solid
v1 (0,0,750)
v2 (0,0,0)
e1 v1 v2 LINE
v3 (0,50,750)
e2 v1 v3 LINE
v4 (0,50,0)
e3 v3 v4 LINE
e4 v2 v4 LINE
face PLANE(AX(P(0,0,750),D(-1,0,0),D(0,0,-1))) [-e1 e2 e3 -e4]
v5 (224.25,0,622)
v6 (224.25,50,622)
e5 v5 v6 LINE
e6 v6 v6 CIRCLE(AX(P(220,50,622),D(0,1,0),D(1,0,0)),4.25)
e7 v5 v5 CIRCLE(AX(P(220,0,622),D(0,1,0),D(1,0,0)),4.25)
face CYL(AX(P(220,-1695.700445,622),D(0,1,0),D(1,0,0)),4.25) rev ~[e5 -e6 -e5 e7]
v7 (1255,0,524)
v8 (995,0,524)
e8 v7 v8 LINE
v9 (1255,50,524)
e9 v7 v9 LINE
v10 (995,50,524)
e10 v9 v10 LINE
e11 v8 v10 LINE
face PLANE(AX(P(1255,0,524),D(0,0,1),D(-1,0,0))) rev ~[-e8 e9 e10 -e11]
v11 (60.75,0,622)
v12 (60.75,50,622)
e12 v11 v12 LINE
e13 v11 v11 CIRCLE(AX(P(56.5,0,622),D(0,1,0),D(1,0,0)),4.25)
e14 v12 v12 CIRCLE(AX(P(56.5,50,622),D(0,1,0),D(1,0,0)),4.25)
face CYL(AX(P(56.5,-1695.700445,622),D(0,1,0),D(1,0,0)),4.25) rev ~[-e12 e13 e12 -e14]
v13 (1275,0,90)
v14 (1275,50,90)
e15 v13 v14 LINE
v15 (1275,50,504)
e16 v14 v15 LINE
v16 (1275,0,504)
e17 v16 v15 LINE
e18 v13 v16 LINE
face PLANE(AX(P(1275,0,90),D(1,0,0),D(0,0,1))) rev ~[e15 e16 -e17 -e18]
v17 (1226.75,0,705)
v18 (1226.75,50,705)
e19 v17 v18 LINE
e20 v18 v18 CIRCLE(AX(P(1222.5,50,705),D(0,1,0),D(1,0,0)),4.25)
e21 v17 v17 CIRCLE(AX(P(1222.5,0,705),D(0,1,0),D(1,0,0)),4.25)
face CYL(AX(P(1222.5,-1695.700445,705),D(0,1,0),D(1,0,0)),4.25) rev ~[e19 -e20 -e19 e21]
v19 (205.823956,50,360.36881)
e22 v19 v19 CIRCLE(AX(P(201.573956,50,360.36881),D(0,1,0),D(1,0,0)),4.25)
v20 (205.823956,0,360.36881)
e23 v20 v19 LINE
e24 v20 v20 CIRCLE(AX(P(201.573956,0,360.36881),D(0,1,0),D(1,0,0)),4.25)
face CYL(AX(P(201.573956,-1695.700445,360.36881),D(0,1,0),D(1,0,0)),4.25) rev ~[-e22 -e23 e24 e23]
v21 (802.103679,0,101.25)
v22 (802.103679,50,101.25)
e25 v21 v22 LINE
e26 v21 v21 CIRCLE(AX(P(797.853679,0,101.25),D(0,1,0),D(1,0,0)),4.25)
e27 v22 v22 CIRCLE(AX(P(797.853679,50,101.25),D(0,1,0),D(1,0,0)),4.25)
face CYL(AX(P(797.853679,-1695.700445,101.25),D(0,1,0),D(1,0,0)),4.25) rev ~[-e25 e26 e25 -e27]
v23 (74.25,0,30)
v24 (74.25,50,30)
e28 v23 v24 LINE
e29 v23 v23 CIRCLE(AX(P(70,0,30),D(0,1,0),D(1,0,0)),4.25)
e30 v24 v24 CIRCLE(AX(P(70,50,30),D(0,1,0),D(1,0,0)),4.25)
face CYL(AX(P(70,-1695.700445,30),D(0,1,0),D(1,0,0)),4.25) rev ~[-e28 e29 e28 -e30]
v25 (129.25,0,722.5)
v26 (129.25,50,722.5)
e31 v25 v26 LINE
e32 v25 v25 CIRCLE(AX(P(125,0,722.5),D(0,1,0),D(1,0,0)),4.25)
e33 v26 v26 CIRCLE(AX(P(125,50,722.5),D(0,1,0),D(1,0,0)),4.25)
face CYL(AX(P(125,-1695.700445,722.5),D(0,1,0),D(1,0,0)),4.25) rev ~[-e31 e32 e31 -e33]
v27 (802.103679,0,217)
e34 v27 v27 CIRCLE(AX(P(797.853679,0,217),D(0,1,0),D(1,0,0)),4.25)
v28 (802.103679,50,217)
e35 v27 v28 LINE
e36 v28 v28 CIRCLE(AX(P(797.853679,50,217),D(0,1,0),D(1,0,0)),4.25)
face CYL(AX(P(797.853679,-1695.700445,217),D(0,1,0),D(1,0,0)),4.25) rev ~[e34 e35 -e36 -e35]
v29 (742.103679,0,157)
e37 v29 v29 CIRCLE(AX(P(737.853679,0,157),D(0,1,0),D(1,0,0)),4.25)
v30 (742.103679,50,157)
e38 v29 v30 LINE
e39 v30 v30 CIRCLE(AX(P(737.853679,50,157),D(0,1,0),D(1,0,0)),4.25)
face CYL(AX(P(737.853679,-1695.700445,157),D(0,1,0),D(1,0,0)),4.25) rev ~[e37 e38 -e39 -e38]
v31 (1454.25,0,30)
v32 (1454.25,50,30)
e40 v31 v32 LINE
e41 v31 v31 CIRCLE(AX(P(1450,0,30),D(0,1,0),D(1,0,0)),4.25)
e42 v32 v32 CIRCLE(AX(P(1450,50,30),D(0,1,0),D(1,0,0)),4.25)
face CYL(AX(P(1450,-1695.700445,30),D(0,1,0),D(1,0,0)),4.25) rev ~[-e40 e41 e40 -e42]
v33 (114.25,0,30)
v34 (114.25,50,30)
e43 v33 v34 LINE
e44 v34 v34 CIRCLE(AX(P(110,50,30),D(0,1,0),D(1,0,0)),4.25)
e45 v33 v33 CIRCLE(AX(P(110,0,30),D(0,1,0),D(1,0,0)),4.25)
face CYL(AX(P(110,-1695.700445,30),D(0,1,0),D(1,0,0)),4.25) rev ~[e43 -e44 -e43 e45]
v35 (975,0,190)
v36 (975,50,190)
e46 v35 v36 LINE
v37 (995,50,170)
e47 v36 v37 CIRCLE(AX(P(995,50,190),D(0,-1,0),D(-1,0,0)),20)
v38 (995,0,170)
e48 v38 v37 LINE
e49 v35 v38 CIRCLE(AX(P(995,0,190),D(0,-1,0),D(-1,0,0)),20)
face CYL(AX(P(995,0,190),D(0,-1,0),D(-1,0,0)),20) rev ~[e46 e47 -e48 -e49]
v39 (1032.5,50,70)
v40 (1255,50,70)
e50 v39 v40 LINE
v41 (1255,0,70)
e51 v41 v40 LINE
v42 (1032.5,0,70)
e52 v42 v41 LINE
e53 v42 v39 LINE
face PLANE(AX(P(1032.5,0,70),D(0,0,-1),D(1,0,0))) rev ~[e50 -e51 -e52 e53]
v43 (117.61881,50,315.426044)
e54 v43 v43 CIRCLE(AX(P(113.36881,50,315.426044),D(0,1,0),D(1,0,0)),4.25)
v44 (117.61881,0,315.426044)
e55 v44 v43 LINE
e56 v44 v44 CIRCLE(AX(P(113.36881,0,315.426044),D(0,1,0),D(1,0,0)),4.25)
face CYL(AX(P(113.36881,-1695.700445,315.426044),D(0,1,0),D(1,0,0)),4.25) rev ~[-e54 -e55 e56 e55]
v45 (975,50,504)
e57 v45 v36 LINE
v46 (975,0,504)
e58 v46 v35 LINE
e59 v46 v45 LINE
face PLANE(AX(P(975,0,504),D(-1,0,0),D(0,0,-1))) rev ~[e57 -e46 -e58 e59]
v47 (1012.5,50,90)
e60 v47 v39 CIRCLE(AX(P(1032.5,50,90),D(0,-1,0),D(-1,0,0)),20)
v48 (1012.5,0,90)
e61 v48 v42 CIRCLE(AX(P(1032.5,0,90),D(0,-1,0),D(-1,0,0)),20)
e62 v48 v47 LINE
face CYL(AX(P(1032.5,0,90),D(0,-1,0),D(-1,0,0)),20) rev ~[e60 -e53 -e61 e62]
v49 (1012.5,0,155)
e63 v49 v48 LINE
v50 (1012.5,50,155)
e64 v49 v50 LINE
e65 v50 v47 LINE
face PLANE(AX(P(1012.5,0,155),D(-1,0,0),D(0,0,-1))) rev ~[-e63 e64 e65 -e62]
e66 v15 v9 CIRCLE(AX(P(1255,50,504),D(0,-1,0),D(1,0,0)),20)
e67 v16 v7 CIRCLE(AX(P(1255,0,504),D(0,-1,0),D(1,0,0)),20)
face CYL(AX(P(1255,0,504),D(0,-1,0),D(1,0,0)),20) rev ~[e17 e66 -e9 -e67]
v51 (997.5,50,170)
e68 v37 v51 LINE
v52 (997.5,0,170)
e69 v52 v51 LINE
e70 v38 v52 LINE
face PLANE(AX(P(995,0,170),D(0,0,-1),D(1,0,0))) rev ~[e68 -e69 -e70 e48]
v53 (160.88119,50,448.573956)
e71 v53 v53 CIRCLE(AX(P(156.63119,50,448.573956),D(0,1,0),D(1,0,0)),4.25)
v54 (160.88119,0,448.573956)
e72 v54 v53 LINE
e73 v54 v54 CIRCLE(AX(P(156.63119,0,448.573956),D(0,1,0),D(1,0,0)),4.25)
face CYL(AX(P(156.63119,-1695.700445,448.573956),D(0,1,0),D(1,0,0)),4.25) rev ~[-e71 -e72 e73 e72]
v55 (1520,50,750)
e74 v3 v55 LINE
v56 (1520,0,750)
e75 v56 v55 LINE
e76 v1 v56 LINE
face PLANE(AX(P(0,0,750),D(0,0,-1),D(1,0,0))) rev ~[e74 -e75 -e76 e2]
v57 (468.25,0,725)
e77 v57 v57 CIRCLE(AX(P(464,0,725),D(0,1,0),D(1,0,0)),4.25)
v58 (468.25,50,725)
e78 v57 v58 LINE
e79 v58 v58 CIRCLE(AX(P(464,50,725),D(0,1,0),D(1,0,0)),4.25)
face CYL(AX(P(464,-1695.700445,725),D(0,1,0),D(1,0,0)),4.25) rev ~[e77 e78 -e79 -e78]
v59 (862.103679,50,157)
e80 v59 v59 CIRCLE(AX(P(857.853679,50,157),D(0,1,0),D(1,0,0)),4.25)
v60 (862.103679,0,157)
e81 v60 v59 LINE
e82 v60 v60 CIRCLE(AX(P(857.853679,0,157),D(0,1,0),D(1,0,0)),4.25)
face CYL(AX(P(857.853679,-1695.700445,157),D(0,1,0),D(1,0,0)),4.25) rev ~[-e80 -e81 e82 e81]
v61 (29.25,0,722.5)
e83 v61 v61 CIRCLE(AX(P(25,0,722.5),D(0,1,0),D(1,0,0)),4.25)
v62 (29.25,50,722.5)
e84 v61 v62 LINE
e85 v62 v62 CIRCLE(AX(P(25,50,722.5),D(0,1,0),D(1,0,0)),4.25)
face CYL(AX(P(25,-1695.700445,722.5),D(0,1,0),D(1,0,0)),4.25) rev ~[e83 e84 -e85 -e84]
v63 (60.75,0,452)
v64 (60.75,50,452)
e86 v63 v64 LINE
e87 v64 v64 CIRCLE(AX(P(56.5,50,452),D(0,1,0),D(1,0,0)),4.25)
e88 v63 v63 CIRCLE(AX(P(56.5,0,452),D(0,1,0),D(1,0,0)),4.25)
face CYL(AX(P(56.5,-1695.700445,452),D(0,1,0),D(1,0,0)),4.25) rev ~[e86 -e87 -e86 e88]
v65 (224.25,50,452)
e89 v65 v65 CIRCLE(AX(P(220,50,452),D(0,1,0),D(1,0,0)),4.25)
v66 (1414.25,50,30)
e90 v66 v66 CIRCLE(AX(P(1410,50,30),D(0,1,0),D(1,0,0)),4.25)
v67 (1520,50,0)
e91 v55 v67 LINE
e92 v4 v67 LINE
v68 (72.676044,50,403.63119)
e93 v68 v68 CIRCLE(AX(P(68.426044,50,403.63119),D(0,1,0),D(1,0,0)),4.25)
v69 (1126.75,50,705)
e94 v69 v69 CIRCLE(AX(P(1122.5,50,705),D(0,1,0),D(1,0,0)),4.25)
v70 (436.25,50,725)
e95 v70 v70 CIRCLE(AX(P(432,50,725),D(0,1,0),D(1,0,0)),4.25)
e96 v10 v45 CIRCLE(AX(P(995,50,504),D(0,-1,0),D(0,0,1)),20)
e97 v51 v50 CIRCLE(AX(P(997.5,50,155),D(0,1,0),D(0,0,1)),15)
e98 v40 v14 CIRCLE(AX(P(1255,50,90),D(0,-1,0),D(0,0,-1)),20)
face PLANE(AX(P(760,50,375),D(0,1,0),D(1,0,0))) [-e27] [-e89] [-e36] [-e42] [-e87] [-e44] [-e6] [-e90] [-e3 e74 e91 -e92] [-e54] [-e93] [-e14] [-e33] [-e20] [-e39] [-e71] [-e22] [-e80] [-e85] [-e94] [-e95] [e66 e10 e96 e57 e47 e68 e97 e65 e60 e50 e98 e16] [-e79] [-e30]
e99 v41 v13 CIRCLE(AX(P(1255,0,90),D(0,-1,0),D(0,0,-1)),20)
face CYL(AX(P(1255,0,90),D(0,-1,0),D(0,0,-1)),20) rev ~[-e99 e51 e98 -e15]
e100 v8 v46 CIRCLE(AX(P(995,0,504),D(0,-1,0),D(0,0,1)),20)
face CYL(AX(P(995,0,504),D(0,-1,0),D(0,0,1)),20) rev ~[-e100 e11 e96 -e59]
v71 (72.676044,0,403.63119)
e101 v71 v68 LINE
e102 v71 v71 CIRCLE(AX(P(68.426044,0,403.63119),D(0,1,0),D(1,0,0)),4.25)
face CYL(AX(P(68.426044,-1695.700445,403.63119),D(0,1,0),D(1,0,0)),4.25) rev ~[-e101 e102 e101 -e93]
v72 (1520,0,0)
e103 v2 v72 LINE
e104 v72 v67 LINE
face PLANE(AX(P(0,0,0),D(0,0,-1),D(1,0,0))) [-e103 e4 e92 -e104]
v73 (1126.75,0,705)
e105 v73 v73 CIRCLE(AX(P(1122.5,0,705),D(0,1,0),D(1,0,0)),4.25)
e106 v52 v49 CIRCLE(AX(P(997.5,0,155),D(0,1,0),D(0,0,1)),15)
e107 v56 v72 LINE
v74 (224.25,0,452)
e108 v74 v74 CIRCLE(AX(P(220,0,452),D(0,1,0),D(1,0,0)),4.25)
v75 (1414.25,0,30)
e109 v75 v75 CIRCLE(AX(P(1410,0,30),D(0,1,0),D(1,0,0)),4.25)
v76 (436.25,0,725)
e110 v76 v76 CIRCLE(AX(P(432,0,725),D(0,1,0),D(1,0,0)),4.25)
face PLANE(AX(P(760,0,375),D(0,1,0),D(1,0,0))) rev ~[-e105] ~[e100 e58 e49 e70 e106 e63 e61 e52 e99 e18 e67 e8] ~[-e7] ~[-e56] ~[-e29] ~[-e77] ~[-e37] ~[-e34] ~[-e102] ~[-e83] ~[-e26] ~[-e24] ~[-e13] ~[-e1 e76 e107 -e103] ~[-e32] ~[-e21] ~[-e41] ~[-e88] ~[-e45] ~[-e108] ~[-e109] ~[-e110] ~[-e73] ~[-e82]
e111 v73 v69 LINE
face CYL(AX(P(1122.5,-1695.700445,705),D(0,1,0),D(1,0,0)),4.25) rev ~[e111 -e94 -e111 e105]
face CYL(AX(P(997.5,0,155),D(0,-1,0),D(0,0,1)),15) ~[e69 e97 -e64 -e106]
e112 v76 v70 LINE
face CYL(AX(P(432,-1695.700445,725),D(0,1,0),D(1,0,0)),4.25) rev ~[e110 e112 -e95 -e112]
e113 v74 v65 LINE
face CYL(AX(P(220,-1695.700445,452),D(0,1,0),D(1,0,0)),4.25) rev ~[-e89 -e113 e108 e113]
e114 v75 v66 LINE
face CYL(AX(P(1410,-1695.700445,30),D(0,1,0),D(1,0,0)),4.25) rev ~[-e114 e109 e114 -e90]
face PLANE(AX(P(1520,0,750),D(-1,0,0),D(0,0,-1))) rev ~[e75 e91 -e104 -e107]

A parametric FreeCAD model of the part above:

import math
import FreeCAD as App
import Part
import Sketcher
from FreeCAD import Vector
Q = App.Units.Quantity


def add_polygon(sketch, points):
    """Adds a closed chain of lines whose ends are joined by coincident constraints."""
    first, n = sketch.GeometryCount, len(points)
    for a, b in zip(points, points[1:] + points[:1]):
        sketch.addGeometry(Part.LineSegment(App.Vector(*a, 0), App.Vector(*b, 0)), False)
    for i in range(n):
        sketch.addConstraint(Sketcher.Constraint("Coincident", first + i, 2, first + (i + 1) % n, 1))

doc = App.newDocument("Part")
body = doc.addObject("PartDesign::Body", "Body")

sketch1 = body.newObject("Sketcher::SketchObject", "Sketch")
sketch1.AttachmentSupport = (doc.getObject("XZ_Plane"), [""])
sketch1.MapMode = "FlatFace"
add_polygon(sketch1, [(0, 0), (0, 750), (1520, 750), (1520, 0)])
sketch1.addGeometry(Part.ArcOfCircle(Part.Circle(Vector(995, 190, 0), Vector(0, 0, 1), 20), math.radians(180), math.radians(270)), False)
sketch1.addGeometry(Part.LineSegment(Vector(995, 170, 0), Vector(997.5, 170, 0)), False)
sketch1.addGeometry(Part.ArcOfCircle(Part.Circle(Vector(997.5, 155, 0), Vector(0, 0, 1), 15), math.radians(0), math.radians(90)), False)
sketch1.addGeometry(Part.LineSegment(Vector(1012.5, 155, 0), Vector(1012.5, 90, 0)), False)
sketch1.addGeometry(Part.ArcOfCircle(Part.Circle(Vector(1032.5, 90, 0), Vector(0, 0, 1), 20), math.radians(180), math.radians(270)), False)
sketch1.addGeometry(Part.LineSegment(Vector(1032.5, 70, 0), Vector(1255, 70, 0)), False)
sketch1.addGeometry(Part.ArcOfCircle(Part.Circle(Vector(1255, 90, 0), Vector(0, 0, 1), 20), math.radians(-90), math.radians(0)), False)
sketch1.addGeometry(Part.LineSegment(Vector(1275, 90, 0), Vector(1275, 504, 0)), False)
sketch1.addGeometry(Part.ArcOfCircle(Part.Circle(Vector(1255, 504, 0), Vector(0, 0, 1), 20), math.radians(0), math.radians(90)), False)
sketch1.addGeometry(Part.LineSegment(Vector(1255, 524, 0), Vector(995, 524, 0)), False)
sketch1.addGeometry(Part.ArcOfCircle(Part.Circle(Vector(995, 504, 0), Vector(0, 0, 1), 20), math.radians(90), math.radians(180)), False)
sketch1.addGeometry(Part.LineSegment(Vector(975, 504, 0), Vector(975, 190, 0)), False)
sketch1.addConstraint([
    Sketcher.Constraint("Tangent", 4, 2, 5, 1),
    Sketcher.Constraint("Tangent", 5, 2, 6, 2),
    Sketcher.Constraint("Tangent", 6, 1, 7, 1),
    Sketcher.Constraint("Tangent", 7, 2, 8, 1),
    Sketcher.Constraint("Tangent", 8, 2, 9, 1),
    Sketcher.Constraint("Tangent", 9, 2, 10, 1),
    Sketcher.Constraint("Tangent", 10, 2, 11, 1),
    Sketcher.Constraint("Tangent", 11, 2, 12, 1),
    Sketcher.Constraint("Tangent", 12, 2, 13, 1),
    Sketcher.Constraint("Tangent", 13, 2, 14, 1),
    Sketcher.Constraint("Tangent", 14, 2, 15, 1),
    Sketcher.Constraint("Tangent", 15, 2, 4, 1),
    Sketcher.Constraint("Vertical", 0),
    Sketcher.Constraint("Horizontal", 1),
    Sketcher.Constraint("Vertical", 2),
    Sketcher.Constraint("Horizontal", 3),
    Sketcher.Constraint("Horizontal", 5),
    Sketcher.Constraint("Vertical", 7),
    Sketcher.Constraint("Horizontal", 9),
    Sketcher.Constraint("Vertical", 11),
    Sketcher.Constraint("Horizontal", 13),
    Sketcher.Constraint("Vertical", 15),
    Sketcher.Constraint("Coincident", 3, 2, -1, 1),
    Sketcher.Constraint("Equal", 4, 8),
    Sketcher.Constraint("Equal", 8, 10),
    Sketcher.Constraint("Equal", 10, 12),
    Sketcher.Constraint("Equal", 12, 14),
    Sketcher.Constraint("Radius", 4, Q("20 mm")),
    Sketcher.Constraint("Radius", 6, Q("15 mm")),
    Sketcher.Constraint("DistanceX", 1, 1, 1, 2, Q("1520 mm")),
    Sketcher.Constraint("DistanceX", 13, 2, 13, 1, Q("260 mm")),
    Sketcher.Constraint("DistanceY", 0, 1, 0, 2, Q("750 mm")),
    Sketcher.Constraint("DistanceY", 7, 2, 7, 1, Q("65 mm")),
    Sketcher.Constraint("DistanceY", 11, 1, 11, 2, Q("414 mm")),
    Sketcher.Constraint("DistanceX", 5, 1, 5, 2, Q("2.5 mm")),
    Sketcher.Constraint("DistanceX", -1, 1, 4, 3, Q("995 mm")),
    Sketcher.Constraint("DistanceY", -1, 1, 4, 3, Q("190 mm")),
])
pad1 = body.newObject("PartDesign::Pad", "Pad")
pad1.Profile = sketch1
pad1.Length = 50
pad1.Reversed = True

sketch2 = body.newObject("Sketcher::SketchObject", "Sketch001")
sketch2.AttachmentSupport = (doc.getObject("XZ_Plane"), [""])
sketch2.MapMode = "FlatFace"
sketch2.addGeometry([
    Part.Circle(Vector(70, 30, 0), Vector(0, 0, 1), 4.2),
    Part.Circle(Vector(110, 30, 0), Vector(0, 0, 1), 4.2),
    Part.Circle(Vector(432, 725, 0), Vector(0, 0, 1), 4.2),
    Part.Circle(Vector(464, 725, 0), Vector(0, 0, 1), 4.2),
    Part.Circle(Vector(125, 722.5, 0), Vector(0, 0, 1), 4.2),
    Part.Circle(Vector(25, 722.5, 0), Vector(0, 0, 1), 4.2),
    Part.Circle(Vector(56.5, 622, 0), Vector(0, 0, 1), 4.2),
    Part.Circle(Vector(56.5, 452, 0), Vector(0, 0, 1), 4.2),
    Part.Circle(Vector(220, 452, 0), Vector(0, 0, 1), 4.2),
    Part.Circle(Vector(220, 622, 0), Vector(0, 0, 1), 4.2),
    Part.Circle(Vector(68.4, 403.6, 0), Vector(0, 0, 1), 4.2),
    Part.Circle(Vector(1122.5, 705, 0), Vector(0, 0, 1), 4.2),
    Part.Circle(Vector(1222.5, 705, 0), Vector(0, 0, 1), 4.2),
    Part.Circle(Vector(1410, 30, 0), Vector(0, 0, 1), 4.2),
    Part.Circle(Vector(1450, 30, 0), Vector(0, 0, 1), 4.2),
    Part.Circle(Vector(113.4, 315.4, 0), Vector(0, 0, 1), 4.2),
    Part.Circle(Vector(201.6, 360.4, 0), Vector(0, 0, 1), 4.2),
    Part.Circle(Vector(156.6, 448.6, 0), Vector(0, 0, 1), 4.2),
    Part.Circle(Vector(797.9, 217, 0), Vector(0, 0, 1), 4.2),
    Part.Circle(Vector(797.9, 101.2, 0), Vector(0, 0, 1), 4.2),
    Part.Circle(Vector(857.9, 157, 0), Vector(0, 0, 1), 4.2),
    Part.Circle(Vector(737.9, 157, 0), Vector(0, 0, 1), 4.2),
], False)
sketch2.addConstraint([
    Sketcher.Constraint("Equal", 0, 1),
    Sketcher.Constraint("Equal", 1, 2),
    Sketcher.Constraint("Equal", 2, 3),
    Sketcher.Constraint("Equal", 3, 4),
    Sketcher.Constraint("Equal", 4, 5),
    Sketcher.Constraint("Equal", 5, 6),
    Sketcher.Constraint("Equal", 6, 7),
    Sketcher.Constraint("Equal", 7, 8),
    Sketcher.Constraint("Equal", 8, 9),
    Sketcher.Constraint("Equal", 9, 10),
    Sketcher.Constraint("Equal", 10, 11),
    Sketcher.Constraint("Equal", 11, 12),
    Sketcher.Constraint("Equal", 12, 13),
    Sketcher.Constraint("Equal", 13, 14),
    Sketcher.Constraint("Equal", 14, 15),
    Sketcher.Constraint("Equal", 15, 16),
    Sketcher.Constraint("Equal", 16, 17),
    Sketcher.Constraint("Equal", 17, 18),
    Sketcher.Constraint("Equal", 18, 19),
    Sketcher.Constraint("Equal", 19, 20),
    Sketcher.Constraint("Equal", 20, 21),
    Sketcher.Constraint("Horizontal", 0, 3, 1, 3),
    Sketcher.Constraint("Horizontal", 2, 3, 3, 3),
    Sketcher.Constraint("Horizontal", 4, 3, 5, 3),
    Sketcher.Constraint("Horizontal", 7, 3, 8, 3),
    Sketcher.Constraint("Horizontal", 6, 3, 9, 3),
    Sketcher.Constraint("Horizontal", 11, 3, 12, 3),
    Sketcher.Constraint("Horizontal", 1, 3, 13, 3),
    Sketcher.Constraint("Horizontal", 13, 3, 14, 3),
    Sketcher.Constraint("Horizontal", 20, 3, 21, 3),
    Sketcher.Constraint("Vertical", 6, 3, 7, 3),
    Sketcher.Constraint("Vertical", 8, 3, 9, 3),
    Sketcher.Constraint("Vertical", 18, 3, 19, 3),
    Sketcher.Constraint("Diameter", 0, Q("8.5 mm")),
    Sketcher.Constraint("DistanceX", -1, 1, 0, 3, Q("70 mm")),
    Sketcher.Constraint("DistanceY", -1, 1, 0, 3, Q("30 mm")),
    Sketcher.Constraint("DistanceX", -1, 1, 1, 3, Q("110 mm")),
    Sketcher.Constraint("DistanceX", -1, 1, 2, 3, Q("432 mm")),
    Sketcher.Constraint("DistanceY", -1, 1, 2, 3, Q("725 mm")),
    Sketcher.Constraint("DistanceX", -1, 1, 3, 3, Q("464 mm")),
    Sketcher.Constraint("DistanceX", -1, 1, 4, 3, Q("125 mm")),
    Sketcher.Constraint("DistanceX", -1, 1, 5, 3, Q("25 mm")),
    Sketcher.Constraint("DistanceY", -1, 1, 6, 3, Q("622 mm")),
    Sketcher.Constraint("DistanceY", -1, 1, 7, 3, Q("452 mm")),
    Sketcher.Constraint("DistanceX", -1, 1, 8, 3, Q("220 mm")),
    Sketcher.Constraint("DistanceY", -1, 1, 11, 3, Q("705 mm")),
    Sketcher.Constraint("DistanceX", -1, 1, 13, 3, Q("1410 mm")),
    Sketcher.Constraint("DistanceX", -1, 1, 14, 3, Q("1450 mm")),
    Sketcher.Constraint("DistanceY", -1, 1, 18, 3, Q("217 mm")),
    Sketcher.Constraint("DistanceY", -1, 1, 20, 3, Q("157 mm")),
    Sketcher.Constraint("DistanceX", 11, 3, 12, 3, Q("100 mm")),
    Sketcher.Constraint("DistanceX", 19, 3, 20, 3, Q("60 mm")),
    Sketcher.Constraint("DistanceX", 21, 3, 19, 3, Q("60 mm")),
    Sketcher.Constraint("DistanceY", -1, 1, 4, 3, Q("722.5 mm")),
    Sketcher.Constraint("DistanceX", -1, 1, 6, 3, Q("56.5 mm")),
    Sketcher.Constraint("DistanceX", -1, 1, 11, 3, Q("1122.5 mm")),
    Sketcher.Constraint("DistanceY", -1, 1, 19, 3, Q("101.25 mm")),
    Sketcher.Constraint("DistanceY", -1, 1, 10, 3, Q("403.63119 mm")),
    Sketcher.Constraint("DistanceX", -1, 1, 15, 3, Q("113.36881 mm")),
    Sketcher.Constraint("DistanceY", -1, 1, 16, 3, Q("360.36881 mm")),
    Sketcher.Constraint("DistanceX", -1, 1, 17, 3, Q("156.63119 mm")),
    Sketcher.Constraint("DistanceX", -1, 1, 18, 3, Q("797.853679 mm")),
    Sketcher.Constraint("DistanceX", -1, 1, 10, 3, Q("68.426044 mm")),
    Sketcher.Constraint("DistanceY", -1, 1, 15, 3, Q("315.426044 mm")),
    Sketcher.Constraint("DistanceX", -1, 1, 16, 3, Q("201.573956 mm")),
    Sketcher.Constraint("DistanceY", -1, 1, 17, 3, Q("448.573956 mm")),
])
doc.recompute()
hole = body.newObject("PartDesign::Hole", "Hole")
hole.Profile = sketch2
hole.ThreadType = "None"
hole.Diameter = 8.5
hole.DepthType = "ThroughAll"

doc.recompute()
